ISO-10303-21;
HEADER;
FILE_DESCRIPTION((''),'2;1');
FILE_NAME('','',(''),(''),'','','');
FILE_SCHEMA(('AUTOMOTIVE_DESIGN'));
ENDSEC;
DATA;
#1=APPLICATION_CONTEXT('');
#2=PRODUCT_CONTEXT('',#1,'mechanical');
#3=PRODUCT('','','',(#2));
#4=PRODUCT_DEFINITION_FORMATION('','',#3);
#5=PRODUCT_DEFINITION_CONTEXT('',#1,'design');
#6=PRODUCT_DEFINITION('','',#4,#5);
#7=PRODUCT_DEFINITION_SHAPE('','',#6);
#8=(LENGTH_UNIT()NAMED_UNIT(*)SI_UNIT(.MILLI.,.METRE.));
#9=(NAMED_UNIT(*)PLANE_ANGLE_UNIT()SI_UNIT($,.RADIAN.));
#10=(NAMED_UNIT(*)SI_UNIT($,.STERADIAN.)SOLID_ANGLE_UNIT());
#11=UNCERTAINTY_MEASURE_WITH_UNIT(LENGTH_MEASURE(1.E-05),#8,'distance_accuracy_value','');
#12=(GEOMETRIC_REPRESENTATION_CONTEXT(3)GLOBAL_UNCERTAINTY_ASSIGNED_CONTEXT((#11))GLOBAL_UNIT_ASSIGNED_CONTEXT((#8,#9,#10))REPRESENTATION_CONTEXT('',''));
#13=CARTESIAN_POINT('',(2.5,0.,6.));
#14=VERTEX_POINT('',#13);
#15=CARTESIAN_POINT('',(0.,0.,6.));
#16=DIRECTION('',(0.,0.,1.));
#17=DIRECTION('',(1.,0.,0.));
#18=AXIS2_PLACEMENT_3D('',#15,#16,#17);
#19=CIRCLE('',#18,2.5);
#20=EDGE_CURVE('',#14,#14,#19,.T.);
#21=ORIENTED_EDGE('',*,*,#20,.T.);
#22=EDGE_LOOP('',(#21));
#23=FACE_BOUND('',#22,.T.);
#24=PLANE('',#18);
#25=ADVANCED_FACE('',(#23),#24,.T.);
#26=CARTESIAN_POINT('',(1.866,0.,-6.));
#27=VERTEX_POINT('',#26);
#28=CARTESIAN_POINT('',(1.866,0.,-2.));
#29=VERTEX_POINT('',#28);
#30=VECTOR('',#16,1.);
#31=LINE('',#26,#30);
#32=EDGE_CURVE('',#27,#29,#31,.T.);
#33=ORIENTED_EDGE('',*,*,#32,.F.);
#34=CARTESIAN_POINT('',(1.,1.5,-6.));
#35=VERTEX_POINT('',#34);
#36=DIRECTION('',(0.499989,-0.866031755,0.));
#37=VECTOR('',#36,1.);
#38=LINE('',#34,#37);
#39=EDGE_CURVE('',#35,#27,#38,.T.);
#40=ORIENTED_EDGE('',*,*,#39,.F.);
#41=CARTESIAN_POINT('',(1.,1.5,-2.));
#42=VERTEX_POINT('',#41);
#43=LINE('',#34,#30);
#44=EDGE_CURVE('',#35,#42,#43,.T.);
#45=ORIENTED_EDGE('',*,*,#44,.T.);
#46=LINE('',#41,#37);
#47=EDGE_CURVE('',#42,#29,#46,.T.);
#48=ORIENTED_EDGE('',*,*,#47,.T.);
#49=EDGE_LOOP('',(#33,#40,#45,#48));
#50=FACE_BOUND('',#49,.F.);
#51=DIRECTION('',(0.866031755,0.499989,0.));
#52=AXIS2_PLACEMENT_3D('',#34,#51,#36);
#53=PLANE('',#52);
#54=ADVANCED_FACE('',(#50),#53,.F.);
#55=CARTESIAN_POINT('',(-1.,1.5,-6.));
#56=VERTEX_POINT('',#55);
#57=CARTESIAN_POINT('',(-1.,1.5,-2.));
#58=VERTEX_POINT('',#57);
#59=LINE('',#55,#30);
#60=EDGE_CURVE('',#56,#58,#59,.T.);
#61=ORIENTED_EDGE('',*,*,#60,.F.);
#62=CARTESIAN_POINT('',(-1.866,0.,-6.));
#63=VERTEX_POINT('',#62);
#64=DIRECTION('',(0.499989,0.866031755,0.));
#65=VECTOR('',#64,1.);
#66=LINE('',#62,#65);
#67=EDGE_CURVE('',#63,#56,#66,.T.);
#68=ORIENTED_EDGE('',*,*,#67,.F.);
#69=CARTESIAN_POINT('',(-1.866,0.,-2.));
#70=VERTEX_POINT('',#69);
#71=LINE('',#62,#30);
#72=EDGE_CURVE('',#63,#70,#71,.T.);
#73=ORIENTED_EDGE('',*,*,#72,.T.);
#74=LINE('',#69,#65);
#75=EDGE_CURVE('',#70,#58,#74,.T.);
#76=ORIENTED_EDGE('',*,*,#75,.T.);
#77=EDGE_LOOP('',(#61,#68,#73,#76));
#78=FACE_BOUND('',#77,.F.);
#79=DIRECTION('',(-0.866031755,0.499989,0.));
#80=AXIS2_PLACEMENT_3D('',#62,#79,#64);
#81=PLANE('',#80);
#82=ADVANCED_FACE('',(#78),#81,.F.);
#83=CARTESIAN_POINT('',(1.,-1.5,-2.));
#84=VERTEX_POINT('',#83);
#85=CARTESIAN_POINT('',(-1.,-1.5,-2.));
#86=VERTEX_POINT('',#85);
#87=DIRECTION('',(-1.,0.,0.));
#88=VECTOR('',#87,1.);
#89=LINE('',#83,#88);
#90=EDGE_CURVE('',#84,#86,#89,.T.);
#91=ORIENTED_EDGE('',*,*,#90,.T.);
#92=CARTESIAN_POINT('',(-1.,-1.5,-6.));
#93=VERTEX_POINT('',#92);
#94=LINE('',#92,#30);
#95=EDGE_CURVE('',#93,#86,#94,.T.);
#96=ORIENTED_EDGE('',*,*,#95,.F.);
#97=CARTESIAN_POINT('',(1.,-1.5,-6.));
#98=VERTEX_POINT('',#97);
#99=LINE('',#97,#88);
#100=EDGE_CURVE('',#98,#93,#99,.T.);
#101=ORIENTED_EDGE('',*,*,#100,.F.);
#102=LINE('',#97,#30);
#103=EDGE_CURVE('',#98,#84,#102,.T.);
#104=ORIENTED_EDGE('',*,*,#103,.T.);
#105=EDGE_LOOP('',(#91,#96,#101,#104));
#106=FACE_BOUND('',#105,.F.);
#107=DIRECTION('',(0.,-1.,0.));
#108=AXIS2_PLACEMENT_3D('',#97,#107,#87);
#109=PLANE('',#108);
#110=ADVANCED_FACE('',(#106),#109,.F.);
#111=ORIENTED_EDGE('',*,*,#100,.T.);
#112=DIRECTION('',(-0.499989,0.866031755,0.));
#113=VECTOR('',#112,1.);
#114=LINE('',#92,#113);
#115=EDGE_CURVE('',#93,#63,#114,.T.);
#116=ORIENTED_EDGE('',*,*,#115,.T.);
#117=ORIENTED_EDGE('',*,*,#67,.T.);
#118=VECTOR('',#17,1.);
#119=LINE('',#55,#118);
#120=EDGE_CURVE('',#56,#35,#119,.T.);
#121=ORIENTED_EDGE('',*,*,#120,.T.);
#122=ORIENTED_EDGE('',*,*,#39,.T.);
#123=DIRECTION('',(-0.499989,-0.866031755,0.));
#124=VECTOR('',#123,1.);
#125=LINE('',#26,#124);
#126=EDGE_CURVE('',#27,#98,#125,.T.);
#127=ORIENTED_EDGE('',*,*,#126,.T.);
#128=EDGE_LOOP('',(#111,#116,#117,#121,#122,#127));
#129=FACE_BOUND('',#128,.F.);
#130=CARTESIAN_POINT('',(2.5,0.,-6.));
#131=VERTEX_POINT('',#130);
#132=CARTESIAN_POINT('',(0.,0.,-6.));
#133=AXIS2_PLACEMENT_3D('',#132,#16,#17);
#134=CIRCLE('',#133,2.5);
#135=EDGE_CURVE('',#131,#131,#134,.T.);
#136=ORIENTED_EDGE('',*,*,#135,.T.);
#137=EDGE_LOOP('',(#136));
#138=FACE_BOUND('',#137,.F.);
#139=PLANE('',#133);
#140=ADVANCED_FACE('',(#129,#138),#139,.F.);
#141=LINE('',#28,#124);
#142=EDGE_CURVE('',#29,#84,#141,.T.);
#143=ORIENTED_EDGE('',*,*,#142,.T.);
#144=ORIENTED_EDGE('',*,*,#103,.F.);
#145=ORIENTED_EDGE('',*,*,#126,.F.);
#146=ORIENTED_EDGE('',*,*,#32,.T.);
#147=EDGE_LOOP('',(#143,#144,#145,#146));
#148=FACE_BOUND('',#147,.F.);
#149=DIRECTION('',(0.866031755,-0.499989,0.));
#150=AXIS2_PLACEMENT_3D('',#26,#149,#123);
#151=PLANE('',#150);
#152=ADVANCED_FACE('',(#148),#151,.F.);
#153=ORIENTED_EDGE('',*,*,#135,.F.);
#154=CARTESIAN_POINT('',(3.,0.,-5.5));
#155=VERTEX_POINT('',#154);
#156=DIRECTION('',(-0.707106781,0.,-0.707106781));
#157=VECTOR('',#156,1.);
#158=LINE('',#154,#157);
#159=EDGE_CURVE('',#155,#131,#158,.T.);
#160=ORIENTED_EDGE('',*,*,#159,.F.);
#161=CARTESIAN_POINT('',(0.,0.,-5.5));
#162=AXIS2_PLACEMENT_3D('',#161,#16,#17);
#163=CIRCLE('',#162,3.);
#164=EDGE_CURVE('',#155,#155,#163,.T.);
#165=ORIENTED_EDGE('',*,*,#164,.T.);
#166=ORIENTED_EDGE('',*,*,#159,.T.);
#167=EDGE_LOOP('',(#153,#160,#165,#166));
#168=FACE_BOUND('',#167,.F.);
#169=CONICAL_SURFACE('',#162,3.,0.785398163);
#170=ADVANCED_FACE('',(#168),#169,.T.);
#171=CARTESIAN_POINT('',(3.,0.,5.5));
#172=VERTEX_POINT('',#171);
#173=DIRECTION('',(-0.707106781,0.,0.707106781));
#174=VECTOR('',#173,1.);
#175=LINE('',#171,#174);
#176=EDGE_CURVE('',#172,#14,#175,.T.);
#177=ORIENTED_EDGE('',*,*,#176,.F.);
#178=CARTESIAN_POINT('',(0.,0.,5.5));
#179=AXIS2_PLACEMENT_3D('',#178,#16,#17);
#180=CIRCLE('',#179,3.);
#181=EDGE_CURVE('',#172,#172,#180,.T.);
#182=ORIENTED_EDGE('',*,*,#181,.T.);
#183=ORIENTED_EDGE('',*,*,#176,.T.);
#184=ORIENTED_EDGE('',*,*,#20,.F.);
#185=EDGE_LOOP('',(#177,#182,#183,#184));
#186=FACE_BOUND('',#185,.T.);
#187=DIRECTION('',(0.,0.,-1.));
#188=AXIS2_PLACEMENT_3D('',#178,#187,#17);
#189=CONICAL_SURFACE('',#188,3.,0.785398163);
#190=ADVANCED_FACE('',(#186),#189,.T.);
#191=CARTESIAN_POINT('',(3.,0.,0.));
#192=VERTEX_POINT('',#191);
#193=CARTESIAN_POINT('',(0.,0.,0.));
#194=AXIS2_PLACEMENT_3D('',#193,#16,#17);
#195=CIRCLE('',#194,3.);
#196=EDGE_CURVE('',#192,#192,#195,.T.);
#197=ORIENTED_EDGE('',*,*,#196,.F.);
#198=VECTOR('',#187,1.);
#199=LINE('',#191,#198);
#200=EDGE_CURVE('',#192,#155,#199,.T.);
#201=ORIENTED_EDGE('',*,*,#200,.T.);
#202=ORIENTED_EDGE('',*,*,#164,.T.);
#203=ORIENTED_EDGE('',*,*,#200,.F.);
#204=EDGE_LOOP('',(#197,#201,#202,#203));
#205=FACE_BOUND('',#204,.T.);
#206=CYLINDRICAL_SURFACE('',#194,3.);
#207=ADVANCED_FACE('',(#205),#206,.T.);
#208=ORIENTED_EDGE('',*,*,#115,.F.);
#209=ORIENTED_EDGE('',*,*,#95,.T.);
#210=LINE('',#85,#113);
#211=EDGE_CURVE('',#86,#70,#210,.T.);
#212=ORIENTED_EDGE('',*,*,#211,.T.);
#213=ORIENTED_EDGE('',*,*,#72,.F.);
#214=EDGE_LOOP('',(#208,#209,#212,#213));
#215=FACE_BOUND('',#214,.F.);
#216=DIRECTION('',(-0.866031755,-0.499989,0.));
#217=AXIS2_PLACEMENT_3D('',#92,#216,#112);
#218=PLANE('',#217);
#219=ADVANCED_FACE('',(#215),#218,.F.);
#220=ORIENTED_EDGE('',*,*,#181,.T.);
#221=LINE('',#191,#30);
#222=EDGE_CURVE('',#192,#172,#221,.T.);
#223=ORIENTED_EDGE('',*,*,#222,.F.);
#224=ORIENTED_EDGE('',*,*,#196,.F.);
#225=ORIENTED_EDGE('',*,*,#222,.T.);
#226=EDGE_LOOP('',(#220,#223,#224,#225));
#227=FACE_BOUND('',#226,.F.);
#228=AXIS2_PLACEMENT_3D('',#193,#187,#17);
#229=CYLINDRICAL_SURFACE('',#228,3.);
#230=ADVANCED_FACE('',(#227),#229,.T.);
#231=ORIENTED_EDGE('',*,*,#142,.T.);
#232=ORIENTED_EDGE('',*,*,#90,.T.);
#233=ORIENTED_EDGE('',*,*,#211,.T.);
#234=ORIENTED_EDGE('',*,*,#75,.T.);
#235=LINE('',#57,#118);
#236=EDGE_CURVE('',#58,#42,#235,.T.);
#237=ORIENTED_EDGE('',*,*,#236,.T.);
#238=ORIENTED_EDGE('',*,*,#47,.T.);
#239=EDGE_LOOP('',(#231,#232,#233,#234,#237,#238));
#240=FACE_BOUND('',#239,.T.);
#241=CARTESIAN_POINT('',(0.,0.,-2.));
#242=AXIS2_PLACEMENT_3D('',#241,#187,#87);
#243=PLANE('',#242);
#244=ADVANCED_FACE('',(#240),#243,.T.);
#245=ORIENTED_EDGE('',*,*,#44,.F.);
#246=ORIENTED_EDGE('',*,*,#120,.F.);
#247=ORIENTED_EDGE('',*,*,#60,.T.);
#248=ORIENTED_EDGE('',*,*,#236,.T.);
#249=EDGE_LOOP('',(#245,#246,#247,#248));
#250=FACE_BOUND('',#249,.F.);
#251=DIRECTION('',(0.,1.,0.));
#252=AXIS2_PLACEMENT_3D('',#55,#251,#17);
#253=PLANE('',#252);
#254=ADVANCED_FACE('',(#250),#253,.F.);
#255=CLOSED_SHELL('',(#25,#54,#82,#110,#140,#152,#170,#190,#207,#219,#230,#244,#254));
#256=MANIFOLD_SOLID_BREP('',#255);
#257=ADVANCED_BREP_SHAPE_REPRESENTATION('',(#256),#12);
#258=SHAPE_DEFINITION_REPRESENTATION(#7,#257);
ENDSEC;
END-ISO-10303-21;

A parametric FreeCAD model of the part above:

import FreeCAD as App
import Part
import Sketcher

V = App.Vector
Q = App.Units.Quantity


def edges_at(feature, points):
    """Names of the edges that pass closest to the given points."""
    edges = feature.Shape.Edges
    near = lambda p: min(range(len(edges)), key=lambda i: edges[i].distToShape(Part.Vertex(*p))[0])
    return sorted({f"Edge{near(p) + 1}" for p in points})


def add_polygon(sketch, points):
    """Adds a closed chain of lines whose ends are joined by coincident constraints."""
    first, n = sketch.GeometryCount, len(points)
    for a, b in zip(points, points[1:] + points[:1]):
        sketch.addGeometry(Part.LineSegment(App.Vector(*a, 0), App.Vector(*b, 0)), False)
    for i in range(n):
        sketch.addConstraint(Sketcher.Constraint("Coincident", first + i, 2, first + (i + 1) % n, 1))

doc = App.newDocument("Part")
params = doc.addObject("Spreadsheet::Sheet", "Params")
for row, (alias, value) in enumerate([
    ("sketch1_diameter", "6 mm"),
    ("pad1_length", "12 mm"),
    ("chamfer_size", "0.5 mm"),
    ("sketch2_width", "2 mm"),
    ("pocket1_length", "4 mm"),
], start=1):
    params.set(f"A{row}", alias)
    params.set(f"B{row}", "=" + value)
    params.setAlias(f"B{row}", alias)

body = doc.addObject("PartDesign::Body", "Body")

# Sketch on XY plane
sketch1 = body.newObject("Sketcher::SketchObject", "Sketch")
sketch1.AttachmentSupport = (doc.getObject("XY_Plane"), [""])
sketch1.MapMode = "FlatFace"
sketch1.addGeometry(Part.Circle(V(0, 0, 0), V(0, 0, 1), 3), False)
sketch1.addConstraint([
    Sketcher.Constraint("Coincident", 0, 3, -1, 1),
    Sketcher.Constraint("Diameter", 0, Q("6 mm")),
])
sketch1.setExpression("Constraints[1]", "Params.sketch1_diameter")
pad1 = body.newObject("PartDesign::Pad", "Pad")
pad1.Profile = sketch1
pad1.setExpression("Length", "Params.pad1_length")
pad1.Midplane = True
doc.recompute()

chamfer = body.newObject("PartDesign::Chamfer", "Chamfer")
chamfer.Base = (pad1, edges_at(pad1, [(-3, 0, 6), (-3, 0, -6)]))
chamfer.setExpression("Size", "Params.chamfer_size")

# Sketch on XY plane
sketch2 = body.newObject("Sketcher::SketchObject", "Sketch001")
sketch2.AttachmentSupport = (doc.getObject("XY_Plane"), [""])
sketch2.MapMode = "FlatFace"
sketch2.AttachmentOffset = App.Placement(V(0, 0, -6), App.Rotation())
add_polygon(sketch2, [(1, 1.5), (1.9, 0), (1, -1.5), (-1, -1.5), (-1.9, 0), (-1, 1.5)])  # lines 0-5
sketch2.addConstraint([
    Sketcher.Constraint("Horizontal", 2),
    Sketcher.Constraint("Horizontal", 5),
    Sketcher.Constraint("Symmetric", 0, 2, 3, 2, -1, 1),
    Sketcher.Constraint("Symmetric", 1, 2, 4, 2, -1, 1),
    Sketcher.Constraint("PointOnObject", 0, 2, -1),
    Sketcher.Constraint("Parallel", 0, 3),
    Sketcher.Constraint("Vertical", 2, 2, 4, 2),
    Sketcher.Constraint("DistanceY", 2, 2, 4, 2, Q("3 mm")),
    Sketcher.Constraint("DistanceX", 2, 2, 2, 1, Q("2 mm")),
    Sketcher.Constraint("Angle", 0, Q("-60.0007 deg")),
])
sketch2.setExpression("Constraints[14]", "Params.sketch2_width")
pocket1 = body.newObject("PartDesign::Pocket", "Pocket")
pocket1.Profile = sketch2
pocket1.setExpression("Length", "Params.pocket1_length")
pocket1.Reversed = True

doc.recompute()
